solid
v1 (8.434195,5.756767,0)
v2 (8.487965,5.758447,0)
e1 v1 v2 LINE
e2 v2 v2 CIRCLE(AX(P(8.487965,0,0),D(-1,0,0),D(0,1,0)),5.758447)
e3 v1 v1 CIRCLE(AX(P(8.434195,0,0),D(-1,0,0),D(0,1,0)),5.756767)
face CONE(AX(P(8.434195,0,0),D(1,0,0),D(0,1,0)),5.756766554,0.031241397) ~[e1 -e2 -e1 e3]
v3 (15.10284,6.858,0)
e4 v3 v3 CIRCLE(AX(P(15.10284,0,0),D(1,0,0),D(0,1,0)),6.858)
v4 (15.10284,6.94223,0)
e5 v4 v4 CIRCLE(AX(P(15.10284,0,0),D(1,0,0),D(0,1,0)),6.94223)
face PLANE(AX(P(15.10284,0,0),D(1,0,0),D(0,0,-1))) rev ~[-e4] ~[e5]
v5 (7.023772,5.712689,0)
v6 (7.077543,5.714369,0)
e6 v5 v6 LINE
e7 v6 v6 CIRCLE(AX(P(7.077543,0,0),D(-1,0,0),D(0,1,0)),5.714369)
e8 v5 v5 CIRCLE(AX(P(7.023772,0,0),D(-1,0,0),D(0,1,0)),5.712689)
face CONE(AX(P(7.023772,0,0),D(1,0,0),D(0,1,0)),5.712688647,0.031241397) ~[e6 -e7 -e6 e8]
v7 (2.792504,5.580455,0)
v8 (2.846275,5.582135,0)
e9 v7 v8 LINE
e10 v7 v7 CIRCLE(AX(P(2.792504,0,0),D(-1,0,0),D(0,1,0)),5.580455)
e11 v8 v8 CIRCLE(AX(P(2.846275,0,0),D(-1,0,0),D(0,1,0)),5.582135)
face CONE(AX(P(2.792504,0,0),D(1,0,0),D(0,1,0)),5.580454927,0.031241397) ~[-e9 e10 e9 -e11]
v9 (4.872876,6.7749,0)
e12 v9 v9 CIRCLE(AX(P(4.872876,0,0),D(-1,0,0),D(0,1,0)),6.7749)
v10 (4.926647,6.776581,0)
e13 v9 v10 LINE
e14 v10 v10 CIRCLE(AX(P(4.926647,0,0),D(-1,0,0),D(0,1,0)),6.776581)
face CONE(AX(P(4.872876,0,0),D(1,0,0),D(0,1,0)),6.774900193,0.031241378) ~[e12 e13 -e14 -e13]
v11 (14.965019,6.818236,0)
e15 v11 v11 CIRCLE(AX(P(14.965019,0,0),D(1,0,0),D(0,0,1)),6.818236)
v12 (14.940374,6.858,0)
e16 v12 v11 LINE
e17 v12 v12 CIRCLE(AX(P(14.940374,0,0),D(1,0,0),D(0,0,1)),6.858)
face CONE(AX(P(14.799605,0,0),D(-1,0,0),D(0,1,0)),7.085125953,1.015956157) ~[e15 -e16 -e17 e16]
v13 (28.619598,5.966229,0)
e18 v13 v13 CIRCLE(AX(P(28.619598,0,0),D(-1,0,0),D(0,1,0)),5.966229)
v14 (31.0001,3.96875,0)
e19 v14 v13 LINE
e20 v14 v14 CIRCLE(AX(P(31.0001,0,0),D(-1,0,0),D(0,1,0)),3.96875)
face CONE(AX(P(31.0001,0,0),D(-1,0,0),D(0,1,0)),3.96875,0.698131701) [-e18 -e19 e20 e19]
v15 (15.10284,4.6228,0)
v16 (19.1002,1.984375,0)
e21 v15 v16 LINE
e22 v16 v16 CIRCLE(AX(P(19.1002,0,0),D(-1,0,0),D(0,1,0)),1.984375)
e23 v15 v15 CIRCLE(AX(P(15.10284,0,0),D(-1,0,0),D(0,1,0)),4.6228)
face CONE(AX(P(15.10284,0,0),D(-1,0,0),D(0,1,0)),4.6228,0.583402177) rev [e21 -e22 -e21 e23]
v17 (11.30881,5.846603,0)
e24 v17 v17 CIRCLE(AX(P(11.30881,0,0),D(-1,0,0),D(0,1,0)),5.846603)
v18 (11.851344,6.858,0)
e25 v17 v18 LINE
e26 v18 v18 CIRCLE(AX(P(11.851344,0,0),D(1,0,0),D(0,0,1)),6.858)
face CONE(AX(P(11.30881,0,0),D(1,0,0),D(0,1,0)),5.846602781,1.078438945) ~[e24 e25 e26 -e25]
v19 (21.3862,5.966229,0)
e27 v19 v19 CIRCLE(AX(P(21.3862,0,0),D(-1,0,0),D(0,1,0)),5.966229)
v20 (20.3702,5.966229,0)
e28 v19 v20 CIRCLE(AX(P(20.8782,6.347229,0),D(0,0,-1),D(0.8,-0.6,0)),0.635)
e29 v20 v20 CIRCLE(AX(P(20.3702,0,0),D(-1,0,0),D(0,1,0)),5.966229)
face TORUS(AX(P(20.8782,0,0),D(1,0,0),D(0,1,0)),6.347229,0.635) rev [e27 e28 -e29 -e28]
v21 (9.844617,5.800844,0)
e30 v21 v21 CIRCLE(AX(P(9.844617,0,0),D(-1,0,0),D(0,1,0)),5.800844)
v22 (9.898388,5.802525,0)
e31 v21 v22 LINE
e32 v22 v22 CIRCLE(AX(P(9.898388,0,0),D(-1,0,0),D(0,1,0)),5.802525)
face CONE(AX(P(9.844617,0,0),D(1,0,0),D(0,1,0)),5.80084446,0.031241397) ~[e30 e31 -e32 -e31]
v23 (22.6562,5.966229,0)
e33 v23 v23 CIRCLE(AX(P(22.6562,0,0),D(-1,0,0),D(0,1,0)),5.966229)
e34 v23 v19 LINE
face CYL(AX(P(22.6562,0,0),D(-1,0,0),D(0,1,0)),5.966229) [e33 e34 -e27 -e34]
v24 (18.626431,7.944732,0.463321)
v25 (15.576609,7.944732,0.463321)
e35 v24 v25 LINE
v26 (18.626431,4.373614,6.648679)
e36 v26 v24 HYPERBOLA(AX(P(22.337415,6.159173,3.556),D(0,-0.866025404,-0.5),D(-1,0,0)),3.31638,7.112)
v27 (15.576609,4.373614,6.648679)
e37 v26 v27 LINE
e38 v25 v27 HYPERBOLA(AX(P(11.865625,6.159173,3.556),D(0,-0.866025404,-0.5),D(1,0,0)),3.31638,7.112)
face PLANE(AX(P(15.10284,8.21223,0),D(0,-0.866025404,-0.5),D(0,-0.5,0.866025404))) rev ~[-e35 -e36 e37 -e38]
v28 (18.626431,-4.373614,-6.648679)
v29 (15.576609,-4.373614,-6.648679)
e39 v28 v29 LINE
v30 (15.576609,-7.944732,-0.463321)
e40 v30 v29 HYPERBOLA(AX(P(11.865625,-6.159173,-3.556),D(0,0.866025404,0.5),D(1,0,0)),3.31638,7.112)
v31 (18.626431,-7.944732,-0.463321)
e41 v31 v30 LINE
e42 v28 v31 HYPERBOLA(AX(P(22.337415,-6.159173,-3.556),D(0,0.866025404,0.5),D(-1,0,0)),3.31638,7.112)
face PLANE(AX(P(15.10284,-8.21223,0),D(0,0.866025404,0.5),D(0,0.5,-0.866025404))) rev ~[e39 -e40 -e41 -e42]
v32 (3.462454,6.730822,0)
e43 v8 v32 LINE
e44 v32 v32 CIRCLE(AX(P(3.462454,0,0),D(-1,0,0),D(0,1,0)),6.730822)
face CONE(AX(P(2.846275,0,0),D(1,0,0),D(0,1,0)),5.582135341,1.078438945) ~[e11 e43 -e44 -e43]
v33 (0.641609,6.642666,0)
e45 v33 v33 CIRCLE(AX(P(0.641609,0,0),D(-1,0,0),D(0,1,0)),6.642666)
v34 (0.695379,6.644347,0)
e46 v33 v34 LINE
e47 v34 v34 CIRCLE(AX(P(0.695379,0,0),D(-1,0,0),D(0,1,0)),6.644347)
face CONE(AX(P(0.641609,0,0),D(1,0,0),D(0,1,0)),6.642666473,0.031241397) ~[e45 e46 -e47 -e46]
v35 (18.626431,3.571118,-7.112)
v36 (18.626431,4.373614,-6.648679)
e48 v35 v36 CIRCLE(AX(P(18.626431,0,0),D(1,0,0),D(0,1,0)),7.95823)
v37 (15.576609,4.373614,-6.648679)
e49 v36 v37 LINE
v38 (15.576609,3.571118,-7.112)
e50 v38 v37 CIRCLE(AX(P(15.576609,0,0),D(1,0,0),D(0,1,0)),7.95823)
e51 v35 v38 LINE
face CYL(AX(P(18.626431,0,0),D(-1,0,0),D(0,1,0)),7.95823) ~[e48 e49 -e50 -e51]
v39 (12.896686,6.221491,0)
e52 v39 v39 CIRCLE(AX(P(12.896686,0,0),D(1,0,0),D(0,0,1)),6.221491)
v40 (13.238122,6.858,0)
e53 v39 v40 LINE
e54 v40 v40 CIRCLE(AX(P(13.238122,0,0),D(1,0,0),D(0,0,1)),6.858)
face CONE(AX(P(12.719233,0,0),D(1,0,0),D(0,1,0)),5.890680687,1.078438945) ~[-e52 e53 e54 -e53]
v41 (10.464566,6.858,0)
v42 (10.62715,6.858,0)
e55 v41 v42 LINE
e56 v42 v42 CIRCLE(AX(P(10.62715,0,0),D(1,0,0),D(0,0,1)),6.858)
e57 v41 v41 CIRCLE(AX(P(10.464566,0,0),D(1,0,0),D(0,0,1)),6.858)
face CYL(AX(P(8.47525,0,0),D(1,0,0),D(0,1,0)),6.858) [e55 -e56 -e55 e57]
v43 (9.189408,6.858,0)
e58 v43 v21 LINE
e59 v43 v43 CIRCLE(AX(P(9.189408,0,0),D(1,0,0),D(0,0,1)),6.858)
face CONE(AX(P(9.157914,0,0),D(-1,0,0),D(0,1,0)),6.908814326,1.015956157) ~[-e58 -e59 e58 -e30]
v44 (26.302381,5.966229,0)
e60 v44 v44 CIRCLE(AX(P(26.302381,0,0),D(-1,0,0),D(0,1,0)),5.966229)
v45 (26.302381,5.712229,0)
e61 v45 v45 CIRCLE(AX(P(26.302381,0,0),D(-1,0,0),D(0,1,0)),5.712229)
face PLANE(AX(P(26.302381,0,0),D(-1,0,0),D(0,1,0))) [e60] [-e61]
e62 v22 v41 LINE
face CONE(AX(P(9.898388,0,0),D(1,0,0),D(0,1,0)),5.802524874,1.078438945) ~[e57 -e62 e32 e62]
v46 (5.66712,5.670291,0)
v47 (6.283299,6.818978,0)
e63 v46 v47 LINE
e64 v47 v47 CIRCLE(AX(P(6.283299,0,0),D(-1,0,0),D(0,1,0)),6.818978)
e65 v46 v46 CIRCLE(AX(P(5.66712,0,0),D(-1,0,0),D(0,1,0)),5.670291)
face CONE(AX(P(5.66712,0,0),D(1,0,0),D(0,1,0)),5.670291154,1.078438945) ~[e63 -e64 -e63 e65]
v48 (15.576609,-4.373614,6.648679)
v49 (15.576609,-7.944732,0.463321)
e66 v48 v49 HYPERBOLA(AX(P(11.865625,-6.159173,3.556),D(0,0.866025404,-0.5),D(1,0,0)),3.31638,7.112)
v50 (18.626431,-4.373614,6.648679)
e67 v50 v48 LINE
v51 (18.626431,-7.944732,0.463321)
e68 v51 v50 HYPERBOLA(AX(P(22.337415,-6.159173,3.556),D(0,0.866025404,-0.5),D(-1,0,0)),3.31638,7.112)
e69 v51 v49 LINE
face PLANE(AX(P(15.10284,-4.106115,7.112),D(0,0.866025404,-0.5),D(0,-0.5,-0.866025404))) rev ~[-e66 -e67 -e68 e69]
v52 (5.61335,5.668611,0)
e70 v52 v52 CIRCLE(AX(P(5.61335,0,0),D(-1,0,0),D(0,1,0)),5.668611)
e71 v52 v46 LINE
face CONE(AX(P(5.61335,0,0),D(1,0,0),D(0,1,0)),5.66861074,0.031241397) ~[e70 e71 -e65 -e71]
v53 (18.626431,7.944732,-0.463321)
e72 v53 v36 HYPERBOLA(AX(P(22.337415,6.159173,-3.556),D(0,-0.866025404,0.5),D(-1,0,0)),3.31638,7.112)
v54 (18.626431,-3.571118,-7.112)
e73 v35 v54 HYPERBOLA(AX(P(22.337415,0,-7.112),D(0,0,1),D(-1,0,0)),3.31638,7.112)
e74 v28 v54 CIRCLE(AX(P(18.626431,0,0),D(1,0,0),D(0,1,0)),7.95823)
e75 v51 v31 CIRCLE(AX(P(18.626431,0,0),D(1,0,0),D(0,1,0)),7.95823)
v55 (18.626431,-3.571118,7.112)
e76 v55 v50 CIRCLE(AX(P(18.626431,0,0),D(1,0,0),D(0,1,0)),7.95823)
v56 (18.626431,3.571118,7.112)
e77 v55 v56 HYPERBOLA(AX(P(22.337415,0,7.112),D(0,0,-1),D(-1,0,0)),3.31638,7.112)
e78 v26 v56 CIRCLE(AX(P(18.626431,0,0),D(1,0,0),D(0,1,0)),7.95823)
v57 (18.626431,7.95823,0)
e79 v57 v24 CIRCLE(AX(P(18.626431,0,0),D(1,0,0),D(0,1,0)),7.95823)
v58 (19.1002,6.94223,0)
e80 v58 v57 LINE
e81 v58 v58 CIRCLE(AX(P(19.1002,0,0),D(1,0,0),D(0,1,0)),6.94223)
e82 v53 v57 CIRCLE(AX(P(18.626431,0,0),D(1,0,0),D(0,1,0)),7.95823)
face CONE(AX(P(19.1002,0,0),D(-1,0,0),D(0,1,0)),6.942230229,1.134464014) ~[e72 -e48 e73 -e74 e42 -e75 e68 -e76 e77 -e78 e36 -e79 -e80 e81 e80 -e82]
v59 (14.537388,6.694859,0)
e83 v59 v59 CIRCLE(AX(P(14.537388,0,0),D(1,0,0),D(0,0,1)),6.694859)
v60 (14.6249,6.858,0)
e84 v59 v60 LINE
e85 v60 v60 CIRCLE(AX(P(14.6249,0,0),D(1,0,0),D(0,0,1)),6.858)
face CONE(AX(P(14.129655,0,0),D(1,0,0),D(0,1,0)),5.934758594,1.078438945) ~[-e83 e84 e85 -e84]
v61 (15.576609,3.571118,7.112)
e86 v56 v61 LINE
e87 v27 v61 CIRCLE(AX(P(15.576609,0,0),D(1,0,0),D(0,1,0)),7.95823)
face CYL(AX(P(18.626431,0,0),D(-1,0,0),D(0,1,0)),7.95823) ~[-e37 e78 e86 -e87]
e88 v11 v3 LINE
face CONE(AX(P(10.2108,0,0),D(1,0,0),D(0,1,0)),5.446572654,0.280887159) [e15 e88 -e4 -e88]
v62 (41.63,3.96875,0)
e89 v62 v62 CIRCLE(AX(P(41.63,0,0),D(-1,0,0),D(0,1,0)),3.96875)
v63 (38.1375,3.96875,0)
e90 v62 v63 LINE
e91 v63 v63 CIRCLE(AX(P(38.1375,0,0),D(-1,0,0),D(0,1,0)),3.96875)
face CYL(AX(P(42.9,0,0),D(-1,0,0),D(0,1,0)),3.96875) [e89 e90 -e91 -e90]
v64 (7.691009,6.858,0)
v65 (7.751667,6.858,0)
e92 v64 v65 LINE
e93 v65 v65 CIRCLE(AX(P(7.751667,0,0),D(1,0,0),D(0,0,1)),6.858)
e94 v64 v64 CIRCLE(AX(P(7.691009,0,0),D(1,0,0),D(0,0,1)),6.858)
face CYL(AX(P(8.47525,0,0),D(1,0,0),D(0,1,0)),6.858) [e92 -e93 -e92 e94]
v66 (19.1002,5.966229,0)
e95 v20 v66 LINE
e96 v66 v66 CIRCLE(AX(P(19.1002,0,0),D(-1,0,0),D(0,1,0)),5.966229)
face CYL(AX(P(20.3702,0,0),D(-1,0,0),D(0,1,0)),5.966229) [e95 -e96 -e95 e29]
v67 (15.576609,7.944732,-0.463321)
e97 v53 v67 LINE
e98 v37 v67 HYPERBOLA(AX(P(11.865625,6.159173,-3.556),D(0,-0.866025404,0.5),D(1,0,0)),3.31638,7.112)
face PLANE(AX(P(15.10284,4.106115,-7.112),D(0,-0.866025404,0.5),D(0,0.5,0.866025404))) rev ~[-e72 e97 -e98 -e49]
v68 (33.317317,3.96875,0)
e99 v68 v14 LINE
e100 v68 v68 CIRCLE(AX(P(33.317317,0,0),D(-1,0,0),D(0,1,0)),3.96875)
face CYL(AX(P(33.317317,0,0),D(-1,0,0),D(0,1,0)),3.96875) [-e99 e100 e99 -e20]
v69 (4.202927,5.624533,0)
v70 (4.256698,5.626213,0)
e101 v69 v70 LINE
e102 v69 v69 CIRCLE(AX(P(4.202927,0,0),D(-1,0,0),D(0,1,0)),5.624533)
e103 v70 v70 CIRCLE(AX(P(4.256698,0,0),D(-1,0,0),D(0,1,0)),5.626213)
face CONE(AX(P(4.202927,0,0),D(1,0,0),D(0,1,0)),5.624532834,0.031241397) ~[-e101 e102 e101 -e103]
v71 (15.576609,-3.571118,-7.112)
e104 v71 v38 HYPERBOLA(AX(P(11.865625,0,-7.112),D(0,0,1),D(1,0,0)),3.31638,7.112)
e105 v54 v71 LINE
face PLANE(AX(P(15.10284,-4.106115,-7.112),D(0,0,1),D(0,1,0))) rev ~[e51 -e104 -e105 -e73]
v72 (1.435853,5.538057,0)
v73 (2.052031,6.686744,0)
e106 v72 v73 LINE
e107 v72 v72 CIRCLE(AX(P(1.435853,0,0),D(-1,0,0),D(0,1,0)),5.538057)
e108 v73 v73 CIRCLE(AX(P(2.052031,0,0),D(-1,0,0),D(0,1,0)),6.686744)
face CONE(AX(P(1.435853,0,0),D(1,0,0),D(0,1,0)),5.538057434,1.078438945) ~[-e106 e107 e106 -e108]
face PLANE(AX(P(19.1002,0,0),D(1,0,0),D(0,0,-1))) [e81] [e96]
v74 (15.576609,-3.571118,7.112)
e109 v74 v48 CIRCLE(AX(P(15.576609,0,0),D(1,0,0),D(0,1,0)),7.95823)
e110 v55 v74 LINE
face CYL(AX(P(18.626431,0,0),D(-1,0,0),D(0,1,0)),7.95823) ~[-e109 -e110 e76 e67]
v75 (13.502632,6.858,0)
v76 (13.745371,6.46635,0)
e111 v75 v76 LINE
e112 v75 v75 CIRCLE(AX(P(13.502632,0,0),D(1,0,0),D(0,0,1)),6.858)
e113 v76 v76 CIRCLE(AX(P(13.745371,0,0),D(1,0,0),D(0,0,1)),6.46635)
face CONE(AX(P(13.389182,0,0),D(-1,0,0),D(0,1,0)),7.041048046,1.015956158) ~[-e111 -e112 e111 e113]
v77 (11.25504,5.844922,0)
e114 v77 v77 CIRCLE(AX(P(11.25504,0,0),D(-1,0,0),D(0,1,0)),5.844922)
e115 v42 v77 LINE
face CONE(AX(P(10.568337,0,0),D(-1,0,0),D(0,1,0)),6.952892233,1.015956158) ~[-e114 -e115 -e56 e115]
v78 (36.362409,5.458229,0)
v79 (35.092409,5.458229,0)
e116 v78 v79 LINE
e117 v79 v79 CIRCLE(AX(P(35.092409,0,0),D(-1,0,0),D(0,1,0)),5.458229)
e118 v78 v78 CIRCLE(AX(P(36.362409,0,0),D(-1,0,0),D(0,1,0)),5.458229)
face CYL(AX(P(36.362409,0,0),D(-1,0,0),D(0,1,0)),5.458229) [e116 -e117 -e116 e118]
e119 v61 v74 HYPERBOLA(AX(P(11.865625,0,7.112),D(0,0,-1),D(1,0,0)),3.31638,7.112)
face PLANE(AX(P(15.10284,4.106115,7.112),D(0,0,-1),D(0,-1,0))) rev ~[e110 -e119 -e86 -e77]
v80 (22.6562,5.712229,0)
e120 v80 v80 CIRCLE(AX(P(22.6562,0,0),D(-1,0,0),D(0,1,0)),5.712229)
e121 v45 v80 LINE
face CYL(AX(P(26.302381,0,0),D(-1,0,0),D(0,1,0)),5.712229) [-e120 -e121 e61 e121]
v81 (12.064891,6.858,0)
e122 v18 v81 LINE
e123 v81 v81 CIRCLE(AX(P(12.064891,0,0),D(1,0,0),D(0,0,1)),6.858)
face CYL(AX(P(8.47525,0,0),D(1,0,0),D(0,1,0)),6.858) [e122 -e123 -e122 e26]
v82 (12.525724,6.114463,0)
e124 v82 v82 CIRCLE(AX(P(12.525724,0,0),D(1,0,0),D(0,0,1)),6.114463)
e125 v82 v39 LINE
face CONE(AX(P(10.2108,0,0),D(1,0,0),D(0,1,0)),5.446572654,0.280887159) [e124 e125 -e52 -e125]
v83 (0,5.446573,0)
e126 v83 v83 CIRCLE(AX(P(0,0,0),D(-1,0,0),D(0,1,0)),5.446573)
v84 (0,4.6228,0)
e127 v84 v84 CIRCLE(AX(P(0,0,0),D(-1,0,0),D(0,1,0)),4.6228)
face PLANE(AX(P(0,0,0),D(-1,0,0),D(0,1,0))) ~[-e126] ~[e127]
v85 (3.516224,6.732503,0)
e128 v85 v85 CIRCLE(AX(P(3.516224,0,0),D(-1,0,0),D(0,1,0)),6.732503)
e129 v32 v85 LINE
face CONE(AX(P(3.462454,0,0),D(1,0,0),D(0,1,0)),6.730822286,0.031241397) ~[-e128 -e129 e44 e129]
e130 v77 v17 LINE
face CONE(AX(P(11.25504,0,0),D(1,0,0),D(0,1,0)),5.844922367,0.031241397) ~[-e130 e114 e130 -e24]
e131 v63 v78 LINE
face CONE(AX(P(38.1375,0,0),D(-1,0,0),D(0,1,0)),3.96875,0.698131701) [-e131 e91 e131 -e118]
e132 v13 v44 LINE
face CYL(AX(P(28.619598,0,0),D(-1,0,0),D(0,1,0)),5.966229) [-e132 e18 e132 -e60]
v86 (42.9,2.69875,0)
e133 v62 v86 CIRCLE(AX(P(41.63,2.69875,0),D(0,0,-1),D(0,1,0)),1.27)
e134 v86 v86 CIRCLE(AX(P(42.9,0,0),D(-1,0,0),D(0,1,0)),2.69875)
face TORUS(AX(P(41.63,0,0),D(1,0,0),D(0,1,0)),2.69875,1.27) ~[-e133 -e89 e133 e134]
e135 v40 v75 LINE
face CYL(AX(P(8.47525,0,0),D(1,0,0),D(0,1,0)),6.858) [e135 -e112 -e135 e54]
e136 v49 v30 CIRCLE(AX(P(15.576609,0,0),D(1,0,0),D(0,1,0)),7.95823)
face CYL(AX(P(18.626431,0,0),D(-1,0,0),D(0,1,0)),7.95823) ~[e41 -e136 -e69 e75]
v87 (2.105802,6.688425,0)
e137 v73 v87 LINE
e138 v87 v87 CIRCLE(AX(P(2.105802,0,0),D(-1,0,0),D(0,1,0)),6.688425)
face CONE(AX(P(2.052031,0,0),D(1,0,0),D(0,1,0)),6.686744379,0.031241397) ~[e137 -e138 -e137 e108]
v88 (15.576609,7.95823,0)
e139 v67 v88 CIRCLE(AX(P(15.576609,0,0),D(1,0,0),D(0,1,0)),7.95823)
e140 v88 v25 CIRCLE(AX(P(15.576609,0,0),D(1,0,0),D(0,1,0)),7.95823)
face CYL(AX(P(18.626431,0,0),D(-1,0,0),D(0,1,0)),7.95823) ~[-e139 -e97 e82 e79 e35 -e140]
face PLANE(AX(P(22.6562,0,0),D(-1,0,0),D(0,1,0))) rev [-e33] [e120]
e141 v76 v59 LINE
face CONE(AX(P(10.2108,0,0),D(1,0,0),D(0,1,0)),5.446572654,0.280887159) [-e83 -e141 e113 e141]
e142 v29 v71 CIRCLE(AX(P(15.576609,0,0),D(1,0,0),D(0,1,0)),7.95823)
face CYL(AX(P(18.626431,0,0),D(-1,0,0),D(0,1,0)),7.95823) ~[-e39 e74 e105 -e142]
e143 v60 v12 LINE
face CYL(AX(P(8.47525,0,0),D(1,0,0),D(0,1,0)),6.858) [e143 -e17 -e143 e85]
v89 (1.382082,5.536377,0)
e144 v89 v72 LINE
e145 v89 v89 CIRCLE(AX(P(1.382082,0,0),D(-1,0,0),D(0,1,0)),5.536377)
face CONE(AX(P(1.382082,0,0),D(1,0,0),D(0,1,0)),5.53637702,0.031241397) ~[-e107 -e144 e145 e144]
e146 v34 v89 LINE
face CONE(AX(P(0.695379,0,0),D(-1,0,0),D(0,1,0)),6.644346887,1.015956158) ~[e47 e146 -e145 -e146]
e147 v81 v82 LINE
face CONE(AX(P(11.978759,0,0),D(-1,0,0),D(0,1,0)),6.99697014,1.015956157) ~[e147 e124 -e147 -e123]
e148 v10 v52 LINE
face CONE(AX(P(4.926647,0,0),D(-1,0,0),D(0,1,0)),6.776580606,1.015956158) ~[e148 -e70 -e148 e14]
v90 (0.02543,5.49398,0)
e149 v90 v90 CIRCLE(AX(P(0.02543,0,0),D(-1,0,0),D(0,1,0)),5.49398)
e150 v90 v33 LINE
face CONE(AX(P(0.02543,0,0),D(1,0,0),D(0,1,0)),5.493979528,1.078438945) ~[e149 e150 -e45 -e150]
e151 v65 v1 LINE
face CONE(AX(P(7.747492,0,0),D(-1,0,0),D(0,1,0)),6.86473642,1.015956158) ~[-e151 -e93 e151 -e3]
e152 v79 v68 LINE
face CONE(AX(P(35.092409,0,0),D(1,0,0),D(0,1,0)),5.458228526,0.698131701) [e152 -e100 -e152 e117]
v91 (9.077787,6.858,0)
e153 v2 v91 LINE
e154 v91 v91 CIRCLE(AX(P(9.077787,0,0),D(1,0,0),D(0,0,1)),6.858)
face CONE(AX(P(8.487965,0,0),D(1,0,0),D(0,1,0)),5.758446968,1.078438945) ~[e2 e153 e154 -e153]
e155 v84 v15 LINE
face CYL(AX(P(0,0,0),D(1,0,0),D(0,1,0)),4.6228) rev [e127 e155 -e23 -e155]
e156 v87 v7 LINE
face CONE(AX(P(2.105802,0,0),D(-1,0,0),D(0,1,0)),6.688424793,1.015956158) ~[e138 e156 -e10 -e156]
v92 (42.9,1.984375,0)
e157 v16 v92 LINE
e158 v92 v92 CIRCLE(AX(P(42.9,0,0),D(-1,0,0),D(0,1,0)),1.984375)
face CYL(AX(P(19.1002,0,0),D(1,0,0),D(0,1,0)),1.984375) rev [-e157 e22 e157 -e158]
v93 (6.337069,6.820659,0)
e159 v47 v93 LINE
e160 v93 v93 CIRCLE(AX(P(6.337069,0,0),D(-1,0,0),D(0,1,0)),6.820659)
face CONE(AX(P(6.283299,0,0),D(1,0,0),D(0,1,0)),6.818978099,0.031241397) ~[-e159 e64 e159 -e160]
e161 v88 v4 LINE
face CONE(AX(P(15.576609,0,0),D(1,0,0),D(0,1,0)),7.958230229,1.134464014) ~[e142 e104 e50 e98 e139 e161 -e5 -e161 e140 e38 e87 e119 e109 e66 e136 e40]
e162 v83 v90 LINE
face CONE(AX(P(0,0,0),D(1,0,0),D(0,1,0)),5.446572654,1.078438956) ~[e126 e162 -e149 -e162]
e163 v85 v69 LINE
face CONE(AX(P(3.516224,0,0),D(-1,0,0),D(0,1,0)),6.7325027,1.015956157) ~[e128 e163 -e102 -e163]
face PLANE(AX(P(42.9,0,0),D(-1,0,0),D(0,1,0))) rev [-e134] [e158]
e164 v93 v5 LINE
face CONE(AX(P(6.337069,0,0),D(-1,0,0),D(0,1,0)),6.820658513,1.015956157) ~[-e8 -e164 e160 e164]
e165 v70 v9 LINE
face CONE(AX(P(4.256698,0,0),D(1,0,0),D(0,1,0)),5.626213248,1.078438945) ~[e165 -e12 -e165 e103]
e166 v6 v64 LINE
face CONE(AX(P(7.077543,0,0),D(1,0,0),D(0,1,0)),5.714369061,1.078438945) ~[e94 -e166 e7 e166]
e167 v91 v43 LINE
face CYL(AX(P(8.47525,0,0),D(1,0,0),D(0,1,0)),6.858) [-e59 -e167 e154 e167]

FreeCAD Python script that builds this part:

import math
import FreeCAD as App
import Part
import Sketcher
Q = App.Units.Quantity


def edges_at(feature, points):
    """Names of the edges that pass closest to the given points."""
    edges = feature.Shape.Edges
    near = lambda p: min(range(len(edges)), key=lambda i: edges[i].distToShape(Part.Vertex(*p))[0])
    return sorted({f"Edge{near(p) + 1}" for p in points})

doc = App.newDocument("Part")
body = doc.addObject("PartDesign::Body", "Body")

sketch1 = doc.addObject("Sketcher::SketchObject", "Sketch")
body.addObject(sketch1)
sketch1.AttachmentSupport = (doc.XY_Plane, [""])
sketch1.MapMode = "FlatFace"
sketch1.addGeometry([
    Part.LineSegment(App.Vector(0, 5.45, 0), App.Vector(0, 0, 0)),
    Part.LineSegment(App.Vector(0, 0, 0), App.Vector(16.95, 0, 0)),
    Part.LineSegment(App.Vector(16.95, 0, 0), App.Vector(16.95, 6.02, 0)),
    Part.LineSegment(App.Vector(16.95, 6.02, 0), App.Vector(16.9, 6.02, 0)),
    Part.LineSegment(App.Vector(16.9, 6.02, 0), App.Vector(16.21, 7.13, 0)),
    Part.LineSegment(App.Vector(16.21, 7.13, 0), App.Vector(16.16, 7.13, 0)),
    Part.LineSegment(App.Vector(16.16, 7.13, 0), App.Vector(15.54, 5.98, 0)),
    Part.LineSegment(App.Vector(15.54, 5.98, 0), App.Vector(15.49, 5.98, 0)),
    Part.LineSegment(App.Vector(15.49, 5.98, 0), App.Vector(14.8, 7.09, 0)),
    Part.LineSegment(App.Vector(14.8, 7.09, 0), App.Vector(14.75, 7.08, 0)),
    Part.LineSegment(App.Vector(14.75, 7.08, 0), App.Vector(14.13, 5.93, 0)),
    Part.LineSegment(App.Vector(14.13, 5.93, 0), App.Vector(14.08, 5.93, 0)),
    Part.LineSegment(App.Vector(14.08, 5.93, 0), App.Vector(13.39, 7.04, 0)),
    Part.LineSegment(App.Vector(13.39, 7.04, 0), App.Vector(13.34, 7.04, 0)),
    Part.LineSegment(App.Vector(13.34, 7.04, 0), App.Vector(12.72, 5.89, 0)),
    Part.LineSegment(App.Vector(12.72, 5.89, 0), App.Vector(12.67, 5.89, 0)),
    Part.LineSegment(App.Vector(12.67, 5.89, 0), App.Vector(11.98, 7, 0)),
    Part.LineSegment(App.Vector(11.98, 7, 0), App.Vector(11.92, 7, 0)),
    Part.LineSegment(App.Vector(11.92, 7, 0), App.Vector(11.31, 5.85, 0)),
    Part.LineSegment(App.Vector(11.31, 5.85, 0), App.Vector(11.26, 5.84, 0)),
    Part.LineSegment(App.Vector(11.26, 5.84, 0), App.Vector(10.57, 6.95, 0)),
    Part.LineSegment(App.Vector(10.57, 6.95, 0), App.Vector(10.51, 6.95, 0)),
    Part.LineSegment(App.Vector(10.51, 6.95, 0), App.Vector(9.9, 5.8, 0)),
    Part.LineSegment(App.Vector(9.9, 5.8, 0), App.Vector(9.84, 5.8, 0)),
    Part.LineSegment(App.Vector(9.84, 5.8, 0), App.Vector(9.16, 6.91, 0)),
    Part.LineSegment(App.Vector(9.16, 6.91, 0), App.Vector(9.1, 6.91, 0)),
    Part.LineSegment(App.Vector(9.1, 6.91, 0), App.Vector(8.49, 5.76, 0)),
    Part.LineSegment(App.Vector(8.49, 5.76, 0), App.Vector(8.43, 5.76, 0)),
    Part.LineSegment(App.Vector(8.43, 5.76, 0), App.Vector(7.75, 6.86, 0)),
    Part.LineSegment(App.Vector(7.75, 6.86, 0), App.Vector(7.69, 6.86, 0)),
    Part.LineSegment(App.Vector(7.69, 6.86, 0), App.Vector(7.08, 5.71, 0)),
    Part.LineSegment(App.Vector(7.08, 5.71, 0), App.Vector(7.02, 5.71, 0)),
    Part.LineSegment(App.Vector(7.02, 5.71, 0), App.Vector(6.34, 6.82, 0)),
    Part.LineSegment(App.Vector(6.34, 6.82, 0), App.Vector(6.28, 6.82, 0)),
    Part.LineSegment(App.Vector(6.28, 6.82, 0), App.Vector(5.67, 5.67, 0)),
    Part.LineSegment(App.Vector(5.67, 5.67, 0), App.Vector(5.61, 5.67, 0)),
    Part.LineSegment(App.Vector(5.61, 5.67, 0), App.Vector(4.93, 6.78, 0)),
    Part.LineSegment(App.Vector(4.93, 6.78, 0), App.Vector(4.87, 6.77, 0)),
    Part.LineSegment(App.Vector(4.87, 6.77, 0), App.Vector(4.26, 5.63, 0)),
    Part.LineSegment(App.Vector(4.26, 5.63, 0), App.Vector(4.2, 5.62, 0)),
    Part.LineSegment(App.Vector(4.2, 5.62, 0), App.Vector(3.52, 6.73, 0)),
    Part.LineSegment(App.Vector(3.52, 6.73, 0), App.Vector(3.46, 6.73, 0)),
    Part.LineSegment(App.Vector(3.46, 6.73, 0), App.Vector(2.85, 5.58, 0)),
    Part.LineSegment(App.Vector(2.85, 5.58, 0), App.Vector(2.79, 5.58, 0)),
    Part.LineSegment(App.Vector(2.79, 5.58, 0), App.Vector(2.11, 6.69, 0)),
    Part.LineSegment(App.Vector(2.11, 6.69, 0), App.Vector(2.05, 6.69, 0)),
    Part.LineSegment(App.Vector(2.05, 6.69, 0), App.Vector(1.44, 5.54, 0)),
    Part.LineSegment(App.Vector(1.44, 5.54, 0), App.Vector(1.38, 5.54, 0)),
    Part.LineSegment(App.Vector(1.38, 5.54, 0), App.Vector(0.7, 6.64, 0)),
    Part.LineSegment(App.Vector(0.7, 6.64, 0), App.Vector(0.64, 6.64, 0)),
    Part.LineSegment(App.Vector(0.64, 6.64, 0), App.Vector(0.03, 5.49, 0)),
    Part.LineSegment(App.Vector(0.03, 5.49, 0), App.Vector(0, 5.45, 0)),
], False)
sketch1.addConstraint([
    Sketcher.Constraint("Coincident", 0, 2, 1, 1),
    Sketcher.Constraint("Coincident", 1, 2, 2, 1),
    Sketcher.Constraint("Coincident", 2, 2, 3, 1),
    Sketcher.Constraint("Coincident", 3, 2, 4, 1),
    Sketcher.Constraint("Coincident", 4, 2, 5, 1),
    Sketcher.Constraint("Coincident", 5, 2, 6, 1),
    Sketcher.Constraint("Coincident", 6, 2, 7, 1),
    Sketcher.Constraint("Coincident", 7, 2, 8, 1),
    Sketcher.Constraint("Coincident", 8, 2, 9, 1),
    Sketcher.Constraint("Coincident", 9, 2, 10, 1),
    Sketcher.Constraint("Coincident", 10, 2, 11, 1),
    Sketcher.Constraint("Coincident", 11, 2, 12, 1),
    Sketcher.Constraint("Coincident", 12, 2, 13, 1),
    Sketcher.Constraint("Coincident", 13, 2, 14, 1),
    Sketcher.Constraint("Coincident", 14, 2, 15, 1),
    Sketcher.Constraint("Coincident", 15, 2, 16, 1),
    Sketcher.Constraint("Coincident", 16, 2, 17, 1),
    Sketcher.Constraint("Coincident", 17, 2, 18, 1),
    Sketcher.Constraint("Coincident", 18, 2, 19, 1),
    Sketcher.Constraint("Coincident", 19, 2, 20, 1),
    Sketcher.Constraint("Coincident", 20, 2, 21, 1),
    Sketcher.Constraint("Coincident", 21, 2, 22, 1),
    Sketcher.Constraint("Coincident", 22, 2, 23, 1),
    Sketcher.Constraint("Coincident", 23, 2, 24, 1),
    Sketcher.Constraint("Coincident", 24, 2, 25, 1),
    Sketcher.Constraint("Coincident", 25, 2, 26, 1),
    Sketcher.Constraint("Coincident", 26, 2, 27, 1),
    Sketcher.Constraint("Coincident", 27, 2, 28, 1),
    Sketcher.Constraint("Coincident", 28, 2, 29, 1),
    Sketcher.Constraint("Coincident", 29, 2, 30, 1),
    Sketcher.Constraint("Coincident", 30, 2, 31, 1),
    Sketcher.Constraint("Coincident", 31, 2, 32, 1),
    Sketcher.Constraint("Coincident", 32, 2, 33, 1),
    Sketcher.Constraint("Coincident", 33, 2, 34, 1),
    Sketcher.Constraint("Coincident", 34, 2, 35, 1),
    Sketcher.Constraint("Coincident", 35, 2, 36, 1),
    Sketcher.Constraint("Coincident", 36, 2, 37, 1),
    Sketcher.Constraint("Coincident", 37, 2, 38, 1),
    Sketcher.Constraint("Coincident", 38, 2, 39, 1),
    Sketcher.Constraint("Coincident", 39, 2, 40, 1),
    Sketcher.Constraint("Coincident", 40, 2, 41, 1),
    Sketcher.Constraint("Coincident", 41, 2, 42, 1),
    Sketcher.Constraint("Coincident", 42, 2, 43, 1),
    Sketcher.Constraint("Coincident", 43, 2, 44, 1),
    Sketcher.Constraint("Coincident", 44, 2, 45, 1),
    Sketcher.Constraint("Coincident", 45, 2, 46, 1),
    Sketcher.Constraint("Coincident", 46, 2, 47, 1),
    Sketcher.Constraint("Coincident", 47, 2, 48, 1),
    Sketcher.Constraint("Coincident", 48, 2, 49, 1),
    Sketcher.Constraint("Coincident", 49, 2, 50, 1),
    Sketcher.Constraint("Coincident", 50, 2, 51, 1),
    Sketcher.Constraint("Coincident", 51, 2, 0, 1),
    Sketcher.Constraint("Vertical", 0),
    Sketcher.Constraint("Horizontal", 1),
    Sketcher.Constraint("Vertical", 2),
    Sketcher.Constraint("Coincident", 0, 2, -1, 1),
    Sketcher.Constraint("Parallel", 3, 5),
    Sketcher.Constraint("Parallel", 5, 7),
    Sketcher.Constraint("Parallel", 4, 8),
    Sketcher.Constraint("Parallel", 7, 9),
    Sketcher.Constraint("Parallel", 6, 10),
    Sketcher.Constraint("Parallel", 9, 11),
    Sketcher.Constraint("Parallel", 8, 12),
    Sketcher.Constraint("Parallel", 11, 13),
    Sketcher.Constraint("Parallel", 10, 14),
    Sketcher.Constraint("Parallel", 13, 15),
    Sketcher.Constraint("Parallel", 12, 16),
    Sketcher.Constraint("Parallel", 15, 17),
    Sketcher.Constraint("Parallel", 14, 18),
    Sketcher.Constraint("Parallel", 17, 19),
    Sketcher.Constraint("Parallel", 16, 20),
    Sketcher.Constraint("Parallel", 19, 21),
    Sketcher.Constraint("Parallel", 18, 22),
    Sketcher.Constraint("Parallel", 21, 23),
    Sketcher.Constraint("Parallel", 20, 24),
    Sketcher.Constraint("Parallel", 23, 25),
    Sketcher.Constraint("Parallel", 22, 26),
    Sketcher.Constraint("Parallel", 25, 27),
    Sketcher.Constraint("Parallel", 24, 28),
    Sketcher.Constraint("Parallel", 27, 29),
    Sketcher.Constraint("Parallel", 26, 30),
    Sketcher.Constraint("Parallel", 29, 31),
    Sketcher.Constraint("Parallel", 28, 32),
    Sketcher.Constraint("Parallel", 31, 33),
    Sketcher.Constraint("Parallel", 30, 34),
    Sketcher.Constraint("Parallel", 33, 35),
    Sketcher.Constraint("Parallel", 32, 36),
    Sketcher.Constraint("Parallel", 35, 37),
    Sketcher.Constraint("Parallel", 34, 38),
    Sketcher.Constraint("Parallel", 37, 39),
    Sketcher.Constraint("Parallel", 36, 40),
    Sketcher.Constraint("Parallel", 39, 41),
    Sketcher.Constraint("Parallel", 38, 42),
    Sketcher.Constraint("Parallel", 41, 43),
    Sketcher.Constraint("Parallel", 40, 44),
    Sketcher.Constraint("Parallel", 43, 45),
    Sketcher.Constraint("Parallel", 42, 46),
    Sketcher.Constraint("Parallel", 45, 47),
    Sketcher.Constraint("Parallel", 44, 48),
    Sketcher.Constraint("Parallel", 47, 49),
    Sketcher.Constraint("Parallel", 46, 50),
    Sketcher.Constraint("Parallel", 50, 51),
    Sketcher.Constraint("Equal", 3, 5),
    Sketcher.Constraint("Equal", 4, 6),
    Sketcher.Constraint("Equal", 5, 7),
    Sketcher.Constraint("Equal", 6, 8),
    Sketcher.Constraint("Equal", 7, 9),
    Sketcher.Constraint("Equal", 8, 10),
    Sketcher.Constraint("Equal", 9, 11),
    Sketcher.Constraint("Equal", 10, 12),
    Sketcher.Constraint("Equal", 11, 13),
    Sketcher.Constraint("Equal", 12, 14),
    Sketcher.Constraint("Equal", 13, 15),
    Sketcher.Constraint("Equal", 14, 16),
    Sketcher.Constraint("Equal", 15, 17),
    Sketcher.Constraint("Equal", 16, 18),
    Sketcher.Constraint("Equal", 17, 19),
    Sketcher.Constraint("Equal", 18, 20),
    Sketcher.Constraint("Equal", 19, 21),
    Sketcher.Constraint("Equal", 20, 22),
    Sketcher.Constraint("Equal", 21, 23),
    Sketcher.Constraint("Equal", 22, 24),
    Sketcher.Constraint("Equal", 23, 25),
    Sketcher.Constraint("Equal", 24, 26),
    Sketcher.Constraint("Equal", 25, 27),
    Sketcher.Constraint("Equal", 26, 28),
    Sketcher.Constraint("Equal", 27, 29),
    Sketcher.Constraint("Equal", 28, 30),
    Sketcher.Constraint("Equal", 29, 31),
    Sketcher.Constraint("Equal", 30, 32),
    Sketcher.Constraint("Equal", 31, 33),
    Sketcher.Constraint("Equal", 32, 34),
    Sketcher.Constraint("Equal", 33, 35),
    Sketcher.Constraint("Equal", 34, 36),
    Sketcher.Constraint("Equal", 35, 37),
    Sketcher.Constraint("Equal", 36, 38),
    Sketcher.Constraint("Equal", 37, 39),
    Sketcher.Constraint("Equal", 38, 40),
    Sketcher.Constraint("Equal", 39, 41),
    Sketcher.Constraint("Equal", 40, 42),
    Sketcher.Constraint("Equal", 41, 43),
    Sketcher.Constraint("Equal", 42, 44),
    Sketcher.Constraint("Equal", 43, 45),
    Sketcher.Constraint("Equal", 44, 46),
    Sketcher.Constraint("Equal", 45, 47),
    Sketcher.Constraint("Equal", 46, 48),
    Sketcher.Constraint("Equal", 47, 49),
    Sketcher.Constraint("Equal", 48, 50),
    Sketcher.Constraint("Equal", 49, 51),
    Sketcher.Constraint("Angle", 3, Q("-178.210001 deg")),
    Sketcher.Constraint("Angle", 4, Q("121.79 deg")),
    Sketcher.Constraint("Angle", 6, Q("-118.21 deg")),
    Sketcher.Constraint("DistanceX", 1, 1, 1, 2, 16.9505),
    Sketcher.Constraint("DistanceY", -1, 1, 15, 2, 5.889),
    Sketcher.Constraint("DistanceX", -1, 1, 33, 2, 6.283299),
])
revolution = doc.addObject("PartDesign::Revolution", "Revolution")
body.addObject(revolution)
revolution.Profile = sketch1
revolution.ReferenceAxis = (sketch1, ["H_Axis"])
revolution.Angle = 360

sketch2 = doc.addObject("Sketcher::SketchObject", "Sketch001")
body.addObject(sketch2)
sketch2.AttachmentSupport = (doc.XY_Plane, [""])
sketch2.MapMode = "FlatFace"
sketch2.addGeometry([
    Part.LineSegment(App.Vector(15.1, 7.1, 0), App.Vector(15.1, 0, 0)),
    Part.LineSegment(App.Vector(15.1, 0, 0), App.Vector(17, 0, 0)),
    Part.LineSegment(App.Vector(17, 0, 0), App.Vector(17, 7.2, 0)),
    Part.LineSegment(App.Vector(17, 7.2, 0), App.Vector(15.1, 7.1, 0)),
], False)
sketch2.addConstraint([
    Sketcher.Constraint("Coincident", 0, 2, 1, 1),
    Sketcher.Constraint("Coincident", 1, 2, 2, 1),
    Sketcher.Constraint("Coincident", 2, 2, 3, 1),
    Sketcher.Constraint("Coincident", 3, 2, 0, 1),
    Sketcher.Constraint("Vertical", 0),
    Sketcher.Constraint("Horizontal", 1),
    Sketcher.Constraint("Vertical", 2),
    Sketcher.Constraint("PointOnObject", 0, 2, -1),
    Sketcher.Constraint("Angle", 3, Q("-178.21 deg")),
    Sketcher.Constraint("DistanceX", -1, 1, 0, 2, Q("0.5946 in")),
    Sketcher.Constraint("DistanceX", 1, 1, 1, 2, 1.84766),
    Sketcher.Constraint("DistanceY", 0, 2, 0, 1, 7.094603),
])
groove = doc.addObject("PartDesign::Groove", "Groove")
body.addObject(groove)
groove.Profile = sketch2
groove.ReferenceAxis = (sketch2, ["H_Axis"])
groove.Angle = 360

sketch3 = doc.addObject("Sketcher::SketchObject", "Sketch002")
body.addObject(sketch3)
sketch3.AttachmentSupport = (doc.XY_Plane, [""])
sketch3.MapMode = "FlatFace"
sketch3.addGeometry([
    Part.LineSegment(App.Vector(0, 21, 0), App.Vector(0, 7, 0)),
    Part.LineSegment(App.Vector(0, 7, 0), App.Vector(17, 7, 0)),
    Part.LineSegment(App.Vector(17, 7, 0), App.Vector(17, 21, 0)),
    Part.LineSegment(App.Vector(17, 21, 0), App.Vector(0, 21, 0)),
], False)
sketch3.addConstraint([
    Sketcher.Constraint("Coincident", 0, 2, 1, 1),
    Sketcher.Constraint("Coincident", 1, 2, 2, 1),
    Sketcher.Constraint("Coincident", 2, 2, 3, 1),
    Sketcher.Constraint("Coincident", 3, 2, 0, 1),
    Sketcher.Constraint("Vertical", 0),
    Sketcher.Constraint("Horizontal", 1),
    Sketcher.Constraint("Vertical", 2),
    Sketcher.Constraint("Horizontal", 3),
    Sketcher.Constraint("PointOnObject", 0, 2, -2),
    Sketcher.Constraint("DistanceY", -1, 1, 0, 2, Q("0.27 in")),
    Sketcher.Constraint("DistanceX", 1, 1, 1, 2, 16.9505),
    Sketcher.Constraint("DistanceY", 0, 2, 0, 1, 13.781909),
])
groove2 = doc.addObject("PartDesign::Groove", "Groove001")
body.addObject(groove2)
groove2.Profile = sketch3
groove2.ReferenceAxis = (sketch3, ["H_Axis"])
groove2.Angle = 360

sketch4 = doc.addObject("Sketcher::SketchObject", "Sketch003")
body.addObject(sketch4)
sketch4.AttachmentSupport = (doc.XY_Plane, [""])
sketch4.MapMode = "FlatFace"
sketch4.addGeometry([
    Part.LineSegment(App.Vector(15.1, 6.9, 0), App.Vector(10.2, 5.4, 0)),
    Part.LineSegment(App.Vector(10.2, 5.4, 0), App.Vector(15.1, 5.4, 0)),
    Part.LineSegment(App.Vector(15.1, 5.4, 0), App.Vector(15.1, 6.9, 0)),
], False)
sketch4.addConstraint([
    Sketcher.Constraint("Coincident", 0, 2, 1, 1),
    Sketcher.Constraint("Coincident", 1, 2, 2, 1),
    Sketcher.Constraint("Coincident", 2, 2, 0, 1),
    Sketcher.Constraint("Horizontal", 1),
    Sketcher.Constraint("Vertical", 2),
    Sketcher.Constraint("DistanceY", -1, 1, 2, 2, Q("0.27 in")),
    Sketcher.Constraint("DistanceX", 1, 1, 1, 2, Q("0.1926 in")),
    Sketcher.Constraint("DistanceX", -1, 1, 0, 2, Q("0.402 in")),
    Sketcher.Constraint("Distance", 0, 5.09158),
])
revolution2 = doc.addObject("PartDesign::Revolution", "Revolution001")
body.addObject(revolution2)
revolution2.Profile = sketch4
revolution2.ReferenceAxis = (sketch4, ["H_Axis"])
revolution2.Angle = 360

sketch5 = doc.addObject("Sketcher::SketchObject", "Sketch004")
body.addObject(sketch5)
sketch5.AttachmentSupport = (doc.YZ_Plane, [""])
sketch5.MapMode = "FlatFace"
sketch5.AttachmentOffset = App.Placement(App.Vector(0, 0, 0.5946 * 25.4), App.Rotation())
sketch5.addGeometry([
    Part.LineSegment(App.Vector(8, 0, 0), App.Vector(4, 7, 0)),
    Part.LineSegment(App.Vector(4, 7, 0), App.Vector(-4, 7, 0)),
    Part.LineSegment(App.Vector(-4, 7, 0), App.Vector(-8, 0, 0)),
    Part.LineSegment(App.Vector(-8, 0, 0), App.Vector(-4, -7, 0)),
    Part.LineSegment(App.Vector(-4, -7, 0), App.Vector(4, -7, 0)),
    Part.LineSegment(App.Vector(4, -7, 0), App.Vector(8, 0, 0)),
], False)
sketch5.addConstraint([
    Sketcher.Constraint("Coincident", 0, 2, 1, 1),
    Sketcher.Constraint("Coincident", 1, 2, 2, 1),
    Sketcher.Constraint("Coincident", 2, 2, 3, 1),
    Sketcher.Constraint("Coincident", 3, 2, 4, 1),
    Sketcher.Constraint("Coincident", 4, 2, 5, 1),
    Sketcher.Constraint("Coincident", 5, 2, 0, 1),
    Sketcher.Constraint("Horizontal", 1),
    Sketcher.Constraint("Horizontal", 4),
    Sketcher.Constraint("Symmetric", 0, 2, 3, 2, -1, 1),
    Sketcher.Constraint("Symmetric", 2, 2, 5, 2, -1, 1),
    Sketcher.Constraint("PointOnObject", 2, 2, -1),
    Sketcher.Constraint("Parallel", 2, 5),
    Sketcher.Constraint("Vertical", 1, 2, 3, 2),
    Sketcher.Constraint("Angle", 0, Q("120 deg")),
    Sketcher.Constraint("DistanceY", -1, 1, 0, 2, Q("0.28 in")),
    Sketcher.Constraint("DistanceX", 1, 2, 1, 1, 8.21223),
])
pad1 = doc.addObject("PartDesign::Pad", "Pad")
body.addObject(pad1)
pad1.Profile = sketch5
pad1.Length = 3.99736

sketch6 = doc.addObject("Sketcher::SketchObject", "Sketch005")
body.addObject(sketch6)
sketch6.AttachmentSupport = (doc.XY_Plane, [""])
sketch6.MapMode = "FlatFace"
sketch6.addGeometry([
    Part.LineSegment(App.Vector(18.6, 8, 0), App.Vector(19.1, 6.9, 0)),
    Part.LineSegment(App.Vector(19.1, 6.9, 0), App.Vector(19.1, 8.2, 0)),
    Part.LineSegment(App.Vector(19.1, 8.2, 0), App.Vector(15.1, 8.2, 0)),
    Part.LineSegment(App.Vector(15.1, 8.2, 0), App.Vector(15.1, 6.9, 0)),
    Part.LineSegment(App.Vector(15.1, 6.9, 0), App.Vector(15.6, 8, 0)),
    Part.LineSegment(App.Vector(15.6, 8, 0), App.Vector(18.6, 8, 0)),
], False)
sketch6.addConstraint([
    Sketcher.Constraint("Coincident", 0, 2, 1, 1),
    Sketcher.Constraint("Coincident", 1, 2, 2, 1),
    Sketcher.Constraint("Coincident", 2, 2, 3, 1),
    Sketcher.Constraint("Coincident", 3, 2, 4, 1),
    Sketcher.Constraint("Coincident", 4, 2, 5, 1),
    Sketcher.Constraint("Coincident", 5, 2, 0, 1),
    Sketcher.Constraint("Vertical", 1),
    Sketcher.Constraint("Horizontal", 2),
    Sketcher.Constraint("Vertical", 3),
    Sketcher.Constraint("Horizontal", 5),
    Sketcher.Constraint("Horizontal", 0, 2, 3, 2),
    Sketcher.Constraint("Equal", 0, 4),
    Sketcher.Constraint("Angle", 0, Q("-65 deg")),
    Sketcher.Constraint("DistanceY", 1, 1, 1, 2, Q("0.05 in")),
    Sketcher.Constraint("DistanceY", 4, 2, 2, 2, Q("0.01 in")),
    Sketcher.Constraint("DistanceX", -1, 1, 2, 2, Q("0.5946 in")),
    Sketcher.Constraint("DistanceX", 2, 2, 2, 1, 3.99736),
    Sketcher.Constraint("DistanceY", -1, 1, 0, 2, 6.94223),
])
groove3 = doc.addObject("PartDesign::Groove", "Groove002")
body.addObject(groove3)
groove3.Profile = sketch6
groove3.ReferenceAxis = (sketch6, ["H_Axis"])
groove3.Angle = 360

sketch7 = doc.addObject("Sketcher::SketchObject", "Sketch006")
body.addObject(sketch7)
sketch7.AttachmentSupport = (doc.XY_Plane, [""])
sketch7.MapMode = "FlatFace"
sketch7.addGeometry([
    Part.LineSegment(App.Vector(19.1, 0, 0), App.Vector(42.9, 0, 0)),
    Part.LineSegment(App.Vector(42.9, 0, 0), App.Vector(42.9, 3.97, 0)),
    Part.LineSegment(App.Vector(42.9, 3.97, 0), App.Vector(38.14, 3.97, 0)),
    Part.LineSegment(App.Vector(38.14, 3.97, 0), App.Vector(36.36, 5.46, 0)),
    Part.LineSegment(App.Vector(36.36, 5.46, 0), App.Vector(35.09, 5.46, 0)),
    Part.LineSegment(App.Vector(35.09, 5.46, 0), App.Vector(33.32, 3.97, 0)),
    Part.LineSegment(App.Vector(33.32, 3.97, 0), App.Vector(31, 3.97, 0)),
    Part.LineSegment(App.Vector(31, 3.97, 0), App.Vector(28.62, 5.97, 0)),
    Part.LineSegment(App.Vector(28.62, 5.97, 0), App.Vector(26.3, 5.97, 0)),
    Part.LineSegment(App.Vector(26.3, 5.97, 0), App.Vector(26.3, 5.71, 0)),
    Part.LineSegment(App.Vector(26.3, 5.71, 0), App.Vector(22.66, 5.71, 0)),
    Part.LineSegment(App.Vector(22.66, 5.71, 0), App.Vector(22.66, 5.97, 0)),
    Part.LineSegment(App.Vector(22.66, 5.97, 0), App.Vector(21.39, 5.97, 0)),
    Part.ArcOfCircle(Part.Circle(App.Vector(20.88, 6.35, 0), App.Vector(0, 0, 1), 0.64), math.radians(-143), math.radians(-37)),
    Part.LineSegment(App.Vector(20.37, 5.97, 0), App.Vector(19.1, 5.97, 0)),
    Part.LineSegment(App.Vector(19.1, 5.97, 0), App.Vector(19.1, 0, 0)),
], False)
sketch7.addConstraint([
    Sketcher.Constraint("Coincident", 0, 2, 1, 1),
    Sketcher.Constraint("Coincident", 1, 2, 2, 1),
    Sketcher.Constraint("Coincident", 2, 2, 3, 1),
    Sketcher.Constraint("Coincident", 3, 2, 4, 1),
    Sketcher.Constraint("Coincident", 4, 2, 5, 1),
    Sketcher.Constraint("Coincident", 5, 2, 6, 1),
    Sketcher.Constraint("Coincident", 6, 2, 7, 1),
    Sketcher.Constraint("Coincident", 7, 2, 8, 1),
    Sketcher.Constraint("Coincident", 8, 2, 9, 1),
    Sketcher.Constraint("Coincident", 9, 2, 10, 1),
    Sketcher.Constraint("Coincident", 10, 2, 11, 1),
    Sketcher.Constraint("Coincident", 11, 2, 12, 1),
    Sketcher.Constraint("Coincident", 12, 2, 13, 2),
    Sketcher.Constraint("Coincident", 13, 1, 14, 1),
    Sketcher.Constraint("Coincident", 14, 2, 15, 1),
    Sketcher.Constraint("Coincident", 15, 2, 0, 1),
    Sketcher.Constraint("Horizontal", 0),
    Sketcher.Constraint("Vertical", 1),
    Sketcher.Constraint("Horizontal", 2),
    Sketcher.Constraint("Horizontal", 4),
    Sketcher.Constraint("Horizontal", 6),
    Sketcher.Constraint("Horizontal", 8),
    Sketcher.Constraint("Vertical", 9),
    Sketcher.Constraint("Horizontal", 10),
    Sketcher.Constraint("Vertical", 11),
    Sketcher.Constraint("Horizontal", 12),
    Sketcher.Constraint("Horizontal", 14),
    Sketcher.Constraint("Vertical", 15),
    Sketcher.Constraint("PointOnObject", 0, 2, -1),
    Sketcher.Constraint("Parallel", 3, 7),
    Sketcher.Constraint("Horizontal", 2, 2, 5, 2),
    Sketcher.Constraint("Horizontal", 8, 2, 11, 2),
    Sketcher.Constraint("Horizontal", 12, 2, 13, 1),
    Sketcher.Constraint("Equal", 6, 8),
    Sketcher.Constraint("Equal", 4, 12),
    Sketcher.Constraint("Equal", 12, 14),
    Sketcher.Constraint("Equal", 3, 5),
    Sketcher.Constraint("Angle", 3, Q("140 deg")),
    Sketcher.Constraint("Radius", 13, Q("0.025 in")),
    Sketcher.Constraint("DistanceX", 4, 2, 4, 1, Q("0.05 in")),
    Sketcher.Constraint("DistanceY", 9, 2, 9, 1, Q("0.01 in")),
    Sketcher.Constraint("DistanceX", 0, 1, 0, 2, Q("0.937 in")),
    Sketcher.Constraint("DistanceX", 2, 2, 2, 1, Q("0.1875 in")),
    Sketcher.Constraint("DistanceY", 1, 1, 1, 2, Q("0.15625 in")),
    Sketcher.Constraint("DistanceY", 4, 2, 7, 2, Q("0.02 in")),
    Sketcher.Constraint("DistanceX", 13, 3, 10, 2, Q("0.07 in")),
    Sketcher.Constraint("DistanceX", 6, 2, 2, 2, Q("0.281 in")),
    Sketcher.Constraint("DistanceX", 10, 2, 10, 1, 3.646181),
    Sketcher.Constraint("DistanceX", -1, 1, 13, 3, 20.8782),
])
revolution3 = doc.addObject("PartDesign::Revolution", "Revolution002")
body.addObject(revolution3)
revolution3.Profile = sketch7
revolution3.ReferenceAxis = (sketch7, ["H_Axis"])
revolution3.Angle = 360
doc.recompute()

fillet = doc.addObject("PartDesign::Fillet", "Fillet")
body.addObject(fillet)
fillet.Base = (revolution3, edges_at(revolution3, [(42.9, -3.969, 0)]))
fillet.Radius = Q("0.05 in")

sketch8 = doc.addObject("Sketcher::SketchObject", "Sketch007")
body.addObject(sketch8)
sketch8.AttachmentSupport = (doc.XY_Plane, [""])
sketch8.MapMode = "FlatFace"
sketch8.addGeometry([
    Part.LineSegment(App.Vector(19.1, 2, 0), App.Vector(15.1, 4.6, 0)),
    Part.LineSegment(App.Vector(15.1, 4.6, 0), App.Vector(0, 4.6, 0)),
    Part.LineSegment(App.Vector(0, 4.6, 0), App.Vector(0, 0, 0)),
    Part.LineSegment(App.Vector(0, 0, 0), App.Vector(42.9, 0, 0)),
    Part.LineSegment(App.Vector(42.9, 0, 0), App.Vector(42.9, 2, 0)),
    Part.LineSegment(App.Vector(42.9, 2, 0), App.Vector(19.1, 2, 0)),
], False)
sketch8.addConstraint([
    Sketcher.Constraint("Coincident", 0, 2, 1, 1),
    Sketcher.Constraint("Coincident", 1, 2, 2, 1),
    Sketcher.Constraint("Coincident", 2, 2, 3, 1),
    Sketcher.Constraint("Coincident", 3, 2, 4, 1),
    Sketcher.Constraint("Coincident", 4, 2, 5, 1),
    Sketcher.Constraint("Coincident", 5, 2, 0, 1),
    Sketcher.Constraint("Horizontal", 1),
    Sketcher.Constraint("Vertical", 2),
    Sketcher.Constraint("Horizontal", 3),
    Sketcher.Constraint("Vertical", 4),
    Sketcher.Constraint("Horizontal", 5),
    Sketcher.Constraint("Coincident", 2, 2, -1, 1),
    Sketcher.Constraint("DistanceX", 5, 2, 5, 1, Q("0.937 in")),
    Sketcher.Constraint("DistanceY", 2, 2, 2, 1, Q("0.182 in")),
    Sketcher.Constraint("DistanceY", 4, 1, 4, 2, Q("0.078125 in")),
    Sketcher.Constraint("DistanceX", 1, 2, 1, 1, Q("0.5946 in")),
    Sketcher.Constraint("DistanceX", 3, 1, 3, 2, 42.9),
])
groove4 = doc.addObject("PartDesign::Groove", "Groove003")
body.addObject(groove4)
groove4.Profile = sketch8
groove4.ReferenceAxis = (sketch8, ["H_Axis"])
groove4.Angle = 360

doc.recompute()
